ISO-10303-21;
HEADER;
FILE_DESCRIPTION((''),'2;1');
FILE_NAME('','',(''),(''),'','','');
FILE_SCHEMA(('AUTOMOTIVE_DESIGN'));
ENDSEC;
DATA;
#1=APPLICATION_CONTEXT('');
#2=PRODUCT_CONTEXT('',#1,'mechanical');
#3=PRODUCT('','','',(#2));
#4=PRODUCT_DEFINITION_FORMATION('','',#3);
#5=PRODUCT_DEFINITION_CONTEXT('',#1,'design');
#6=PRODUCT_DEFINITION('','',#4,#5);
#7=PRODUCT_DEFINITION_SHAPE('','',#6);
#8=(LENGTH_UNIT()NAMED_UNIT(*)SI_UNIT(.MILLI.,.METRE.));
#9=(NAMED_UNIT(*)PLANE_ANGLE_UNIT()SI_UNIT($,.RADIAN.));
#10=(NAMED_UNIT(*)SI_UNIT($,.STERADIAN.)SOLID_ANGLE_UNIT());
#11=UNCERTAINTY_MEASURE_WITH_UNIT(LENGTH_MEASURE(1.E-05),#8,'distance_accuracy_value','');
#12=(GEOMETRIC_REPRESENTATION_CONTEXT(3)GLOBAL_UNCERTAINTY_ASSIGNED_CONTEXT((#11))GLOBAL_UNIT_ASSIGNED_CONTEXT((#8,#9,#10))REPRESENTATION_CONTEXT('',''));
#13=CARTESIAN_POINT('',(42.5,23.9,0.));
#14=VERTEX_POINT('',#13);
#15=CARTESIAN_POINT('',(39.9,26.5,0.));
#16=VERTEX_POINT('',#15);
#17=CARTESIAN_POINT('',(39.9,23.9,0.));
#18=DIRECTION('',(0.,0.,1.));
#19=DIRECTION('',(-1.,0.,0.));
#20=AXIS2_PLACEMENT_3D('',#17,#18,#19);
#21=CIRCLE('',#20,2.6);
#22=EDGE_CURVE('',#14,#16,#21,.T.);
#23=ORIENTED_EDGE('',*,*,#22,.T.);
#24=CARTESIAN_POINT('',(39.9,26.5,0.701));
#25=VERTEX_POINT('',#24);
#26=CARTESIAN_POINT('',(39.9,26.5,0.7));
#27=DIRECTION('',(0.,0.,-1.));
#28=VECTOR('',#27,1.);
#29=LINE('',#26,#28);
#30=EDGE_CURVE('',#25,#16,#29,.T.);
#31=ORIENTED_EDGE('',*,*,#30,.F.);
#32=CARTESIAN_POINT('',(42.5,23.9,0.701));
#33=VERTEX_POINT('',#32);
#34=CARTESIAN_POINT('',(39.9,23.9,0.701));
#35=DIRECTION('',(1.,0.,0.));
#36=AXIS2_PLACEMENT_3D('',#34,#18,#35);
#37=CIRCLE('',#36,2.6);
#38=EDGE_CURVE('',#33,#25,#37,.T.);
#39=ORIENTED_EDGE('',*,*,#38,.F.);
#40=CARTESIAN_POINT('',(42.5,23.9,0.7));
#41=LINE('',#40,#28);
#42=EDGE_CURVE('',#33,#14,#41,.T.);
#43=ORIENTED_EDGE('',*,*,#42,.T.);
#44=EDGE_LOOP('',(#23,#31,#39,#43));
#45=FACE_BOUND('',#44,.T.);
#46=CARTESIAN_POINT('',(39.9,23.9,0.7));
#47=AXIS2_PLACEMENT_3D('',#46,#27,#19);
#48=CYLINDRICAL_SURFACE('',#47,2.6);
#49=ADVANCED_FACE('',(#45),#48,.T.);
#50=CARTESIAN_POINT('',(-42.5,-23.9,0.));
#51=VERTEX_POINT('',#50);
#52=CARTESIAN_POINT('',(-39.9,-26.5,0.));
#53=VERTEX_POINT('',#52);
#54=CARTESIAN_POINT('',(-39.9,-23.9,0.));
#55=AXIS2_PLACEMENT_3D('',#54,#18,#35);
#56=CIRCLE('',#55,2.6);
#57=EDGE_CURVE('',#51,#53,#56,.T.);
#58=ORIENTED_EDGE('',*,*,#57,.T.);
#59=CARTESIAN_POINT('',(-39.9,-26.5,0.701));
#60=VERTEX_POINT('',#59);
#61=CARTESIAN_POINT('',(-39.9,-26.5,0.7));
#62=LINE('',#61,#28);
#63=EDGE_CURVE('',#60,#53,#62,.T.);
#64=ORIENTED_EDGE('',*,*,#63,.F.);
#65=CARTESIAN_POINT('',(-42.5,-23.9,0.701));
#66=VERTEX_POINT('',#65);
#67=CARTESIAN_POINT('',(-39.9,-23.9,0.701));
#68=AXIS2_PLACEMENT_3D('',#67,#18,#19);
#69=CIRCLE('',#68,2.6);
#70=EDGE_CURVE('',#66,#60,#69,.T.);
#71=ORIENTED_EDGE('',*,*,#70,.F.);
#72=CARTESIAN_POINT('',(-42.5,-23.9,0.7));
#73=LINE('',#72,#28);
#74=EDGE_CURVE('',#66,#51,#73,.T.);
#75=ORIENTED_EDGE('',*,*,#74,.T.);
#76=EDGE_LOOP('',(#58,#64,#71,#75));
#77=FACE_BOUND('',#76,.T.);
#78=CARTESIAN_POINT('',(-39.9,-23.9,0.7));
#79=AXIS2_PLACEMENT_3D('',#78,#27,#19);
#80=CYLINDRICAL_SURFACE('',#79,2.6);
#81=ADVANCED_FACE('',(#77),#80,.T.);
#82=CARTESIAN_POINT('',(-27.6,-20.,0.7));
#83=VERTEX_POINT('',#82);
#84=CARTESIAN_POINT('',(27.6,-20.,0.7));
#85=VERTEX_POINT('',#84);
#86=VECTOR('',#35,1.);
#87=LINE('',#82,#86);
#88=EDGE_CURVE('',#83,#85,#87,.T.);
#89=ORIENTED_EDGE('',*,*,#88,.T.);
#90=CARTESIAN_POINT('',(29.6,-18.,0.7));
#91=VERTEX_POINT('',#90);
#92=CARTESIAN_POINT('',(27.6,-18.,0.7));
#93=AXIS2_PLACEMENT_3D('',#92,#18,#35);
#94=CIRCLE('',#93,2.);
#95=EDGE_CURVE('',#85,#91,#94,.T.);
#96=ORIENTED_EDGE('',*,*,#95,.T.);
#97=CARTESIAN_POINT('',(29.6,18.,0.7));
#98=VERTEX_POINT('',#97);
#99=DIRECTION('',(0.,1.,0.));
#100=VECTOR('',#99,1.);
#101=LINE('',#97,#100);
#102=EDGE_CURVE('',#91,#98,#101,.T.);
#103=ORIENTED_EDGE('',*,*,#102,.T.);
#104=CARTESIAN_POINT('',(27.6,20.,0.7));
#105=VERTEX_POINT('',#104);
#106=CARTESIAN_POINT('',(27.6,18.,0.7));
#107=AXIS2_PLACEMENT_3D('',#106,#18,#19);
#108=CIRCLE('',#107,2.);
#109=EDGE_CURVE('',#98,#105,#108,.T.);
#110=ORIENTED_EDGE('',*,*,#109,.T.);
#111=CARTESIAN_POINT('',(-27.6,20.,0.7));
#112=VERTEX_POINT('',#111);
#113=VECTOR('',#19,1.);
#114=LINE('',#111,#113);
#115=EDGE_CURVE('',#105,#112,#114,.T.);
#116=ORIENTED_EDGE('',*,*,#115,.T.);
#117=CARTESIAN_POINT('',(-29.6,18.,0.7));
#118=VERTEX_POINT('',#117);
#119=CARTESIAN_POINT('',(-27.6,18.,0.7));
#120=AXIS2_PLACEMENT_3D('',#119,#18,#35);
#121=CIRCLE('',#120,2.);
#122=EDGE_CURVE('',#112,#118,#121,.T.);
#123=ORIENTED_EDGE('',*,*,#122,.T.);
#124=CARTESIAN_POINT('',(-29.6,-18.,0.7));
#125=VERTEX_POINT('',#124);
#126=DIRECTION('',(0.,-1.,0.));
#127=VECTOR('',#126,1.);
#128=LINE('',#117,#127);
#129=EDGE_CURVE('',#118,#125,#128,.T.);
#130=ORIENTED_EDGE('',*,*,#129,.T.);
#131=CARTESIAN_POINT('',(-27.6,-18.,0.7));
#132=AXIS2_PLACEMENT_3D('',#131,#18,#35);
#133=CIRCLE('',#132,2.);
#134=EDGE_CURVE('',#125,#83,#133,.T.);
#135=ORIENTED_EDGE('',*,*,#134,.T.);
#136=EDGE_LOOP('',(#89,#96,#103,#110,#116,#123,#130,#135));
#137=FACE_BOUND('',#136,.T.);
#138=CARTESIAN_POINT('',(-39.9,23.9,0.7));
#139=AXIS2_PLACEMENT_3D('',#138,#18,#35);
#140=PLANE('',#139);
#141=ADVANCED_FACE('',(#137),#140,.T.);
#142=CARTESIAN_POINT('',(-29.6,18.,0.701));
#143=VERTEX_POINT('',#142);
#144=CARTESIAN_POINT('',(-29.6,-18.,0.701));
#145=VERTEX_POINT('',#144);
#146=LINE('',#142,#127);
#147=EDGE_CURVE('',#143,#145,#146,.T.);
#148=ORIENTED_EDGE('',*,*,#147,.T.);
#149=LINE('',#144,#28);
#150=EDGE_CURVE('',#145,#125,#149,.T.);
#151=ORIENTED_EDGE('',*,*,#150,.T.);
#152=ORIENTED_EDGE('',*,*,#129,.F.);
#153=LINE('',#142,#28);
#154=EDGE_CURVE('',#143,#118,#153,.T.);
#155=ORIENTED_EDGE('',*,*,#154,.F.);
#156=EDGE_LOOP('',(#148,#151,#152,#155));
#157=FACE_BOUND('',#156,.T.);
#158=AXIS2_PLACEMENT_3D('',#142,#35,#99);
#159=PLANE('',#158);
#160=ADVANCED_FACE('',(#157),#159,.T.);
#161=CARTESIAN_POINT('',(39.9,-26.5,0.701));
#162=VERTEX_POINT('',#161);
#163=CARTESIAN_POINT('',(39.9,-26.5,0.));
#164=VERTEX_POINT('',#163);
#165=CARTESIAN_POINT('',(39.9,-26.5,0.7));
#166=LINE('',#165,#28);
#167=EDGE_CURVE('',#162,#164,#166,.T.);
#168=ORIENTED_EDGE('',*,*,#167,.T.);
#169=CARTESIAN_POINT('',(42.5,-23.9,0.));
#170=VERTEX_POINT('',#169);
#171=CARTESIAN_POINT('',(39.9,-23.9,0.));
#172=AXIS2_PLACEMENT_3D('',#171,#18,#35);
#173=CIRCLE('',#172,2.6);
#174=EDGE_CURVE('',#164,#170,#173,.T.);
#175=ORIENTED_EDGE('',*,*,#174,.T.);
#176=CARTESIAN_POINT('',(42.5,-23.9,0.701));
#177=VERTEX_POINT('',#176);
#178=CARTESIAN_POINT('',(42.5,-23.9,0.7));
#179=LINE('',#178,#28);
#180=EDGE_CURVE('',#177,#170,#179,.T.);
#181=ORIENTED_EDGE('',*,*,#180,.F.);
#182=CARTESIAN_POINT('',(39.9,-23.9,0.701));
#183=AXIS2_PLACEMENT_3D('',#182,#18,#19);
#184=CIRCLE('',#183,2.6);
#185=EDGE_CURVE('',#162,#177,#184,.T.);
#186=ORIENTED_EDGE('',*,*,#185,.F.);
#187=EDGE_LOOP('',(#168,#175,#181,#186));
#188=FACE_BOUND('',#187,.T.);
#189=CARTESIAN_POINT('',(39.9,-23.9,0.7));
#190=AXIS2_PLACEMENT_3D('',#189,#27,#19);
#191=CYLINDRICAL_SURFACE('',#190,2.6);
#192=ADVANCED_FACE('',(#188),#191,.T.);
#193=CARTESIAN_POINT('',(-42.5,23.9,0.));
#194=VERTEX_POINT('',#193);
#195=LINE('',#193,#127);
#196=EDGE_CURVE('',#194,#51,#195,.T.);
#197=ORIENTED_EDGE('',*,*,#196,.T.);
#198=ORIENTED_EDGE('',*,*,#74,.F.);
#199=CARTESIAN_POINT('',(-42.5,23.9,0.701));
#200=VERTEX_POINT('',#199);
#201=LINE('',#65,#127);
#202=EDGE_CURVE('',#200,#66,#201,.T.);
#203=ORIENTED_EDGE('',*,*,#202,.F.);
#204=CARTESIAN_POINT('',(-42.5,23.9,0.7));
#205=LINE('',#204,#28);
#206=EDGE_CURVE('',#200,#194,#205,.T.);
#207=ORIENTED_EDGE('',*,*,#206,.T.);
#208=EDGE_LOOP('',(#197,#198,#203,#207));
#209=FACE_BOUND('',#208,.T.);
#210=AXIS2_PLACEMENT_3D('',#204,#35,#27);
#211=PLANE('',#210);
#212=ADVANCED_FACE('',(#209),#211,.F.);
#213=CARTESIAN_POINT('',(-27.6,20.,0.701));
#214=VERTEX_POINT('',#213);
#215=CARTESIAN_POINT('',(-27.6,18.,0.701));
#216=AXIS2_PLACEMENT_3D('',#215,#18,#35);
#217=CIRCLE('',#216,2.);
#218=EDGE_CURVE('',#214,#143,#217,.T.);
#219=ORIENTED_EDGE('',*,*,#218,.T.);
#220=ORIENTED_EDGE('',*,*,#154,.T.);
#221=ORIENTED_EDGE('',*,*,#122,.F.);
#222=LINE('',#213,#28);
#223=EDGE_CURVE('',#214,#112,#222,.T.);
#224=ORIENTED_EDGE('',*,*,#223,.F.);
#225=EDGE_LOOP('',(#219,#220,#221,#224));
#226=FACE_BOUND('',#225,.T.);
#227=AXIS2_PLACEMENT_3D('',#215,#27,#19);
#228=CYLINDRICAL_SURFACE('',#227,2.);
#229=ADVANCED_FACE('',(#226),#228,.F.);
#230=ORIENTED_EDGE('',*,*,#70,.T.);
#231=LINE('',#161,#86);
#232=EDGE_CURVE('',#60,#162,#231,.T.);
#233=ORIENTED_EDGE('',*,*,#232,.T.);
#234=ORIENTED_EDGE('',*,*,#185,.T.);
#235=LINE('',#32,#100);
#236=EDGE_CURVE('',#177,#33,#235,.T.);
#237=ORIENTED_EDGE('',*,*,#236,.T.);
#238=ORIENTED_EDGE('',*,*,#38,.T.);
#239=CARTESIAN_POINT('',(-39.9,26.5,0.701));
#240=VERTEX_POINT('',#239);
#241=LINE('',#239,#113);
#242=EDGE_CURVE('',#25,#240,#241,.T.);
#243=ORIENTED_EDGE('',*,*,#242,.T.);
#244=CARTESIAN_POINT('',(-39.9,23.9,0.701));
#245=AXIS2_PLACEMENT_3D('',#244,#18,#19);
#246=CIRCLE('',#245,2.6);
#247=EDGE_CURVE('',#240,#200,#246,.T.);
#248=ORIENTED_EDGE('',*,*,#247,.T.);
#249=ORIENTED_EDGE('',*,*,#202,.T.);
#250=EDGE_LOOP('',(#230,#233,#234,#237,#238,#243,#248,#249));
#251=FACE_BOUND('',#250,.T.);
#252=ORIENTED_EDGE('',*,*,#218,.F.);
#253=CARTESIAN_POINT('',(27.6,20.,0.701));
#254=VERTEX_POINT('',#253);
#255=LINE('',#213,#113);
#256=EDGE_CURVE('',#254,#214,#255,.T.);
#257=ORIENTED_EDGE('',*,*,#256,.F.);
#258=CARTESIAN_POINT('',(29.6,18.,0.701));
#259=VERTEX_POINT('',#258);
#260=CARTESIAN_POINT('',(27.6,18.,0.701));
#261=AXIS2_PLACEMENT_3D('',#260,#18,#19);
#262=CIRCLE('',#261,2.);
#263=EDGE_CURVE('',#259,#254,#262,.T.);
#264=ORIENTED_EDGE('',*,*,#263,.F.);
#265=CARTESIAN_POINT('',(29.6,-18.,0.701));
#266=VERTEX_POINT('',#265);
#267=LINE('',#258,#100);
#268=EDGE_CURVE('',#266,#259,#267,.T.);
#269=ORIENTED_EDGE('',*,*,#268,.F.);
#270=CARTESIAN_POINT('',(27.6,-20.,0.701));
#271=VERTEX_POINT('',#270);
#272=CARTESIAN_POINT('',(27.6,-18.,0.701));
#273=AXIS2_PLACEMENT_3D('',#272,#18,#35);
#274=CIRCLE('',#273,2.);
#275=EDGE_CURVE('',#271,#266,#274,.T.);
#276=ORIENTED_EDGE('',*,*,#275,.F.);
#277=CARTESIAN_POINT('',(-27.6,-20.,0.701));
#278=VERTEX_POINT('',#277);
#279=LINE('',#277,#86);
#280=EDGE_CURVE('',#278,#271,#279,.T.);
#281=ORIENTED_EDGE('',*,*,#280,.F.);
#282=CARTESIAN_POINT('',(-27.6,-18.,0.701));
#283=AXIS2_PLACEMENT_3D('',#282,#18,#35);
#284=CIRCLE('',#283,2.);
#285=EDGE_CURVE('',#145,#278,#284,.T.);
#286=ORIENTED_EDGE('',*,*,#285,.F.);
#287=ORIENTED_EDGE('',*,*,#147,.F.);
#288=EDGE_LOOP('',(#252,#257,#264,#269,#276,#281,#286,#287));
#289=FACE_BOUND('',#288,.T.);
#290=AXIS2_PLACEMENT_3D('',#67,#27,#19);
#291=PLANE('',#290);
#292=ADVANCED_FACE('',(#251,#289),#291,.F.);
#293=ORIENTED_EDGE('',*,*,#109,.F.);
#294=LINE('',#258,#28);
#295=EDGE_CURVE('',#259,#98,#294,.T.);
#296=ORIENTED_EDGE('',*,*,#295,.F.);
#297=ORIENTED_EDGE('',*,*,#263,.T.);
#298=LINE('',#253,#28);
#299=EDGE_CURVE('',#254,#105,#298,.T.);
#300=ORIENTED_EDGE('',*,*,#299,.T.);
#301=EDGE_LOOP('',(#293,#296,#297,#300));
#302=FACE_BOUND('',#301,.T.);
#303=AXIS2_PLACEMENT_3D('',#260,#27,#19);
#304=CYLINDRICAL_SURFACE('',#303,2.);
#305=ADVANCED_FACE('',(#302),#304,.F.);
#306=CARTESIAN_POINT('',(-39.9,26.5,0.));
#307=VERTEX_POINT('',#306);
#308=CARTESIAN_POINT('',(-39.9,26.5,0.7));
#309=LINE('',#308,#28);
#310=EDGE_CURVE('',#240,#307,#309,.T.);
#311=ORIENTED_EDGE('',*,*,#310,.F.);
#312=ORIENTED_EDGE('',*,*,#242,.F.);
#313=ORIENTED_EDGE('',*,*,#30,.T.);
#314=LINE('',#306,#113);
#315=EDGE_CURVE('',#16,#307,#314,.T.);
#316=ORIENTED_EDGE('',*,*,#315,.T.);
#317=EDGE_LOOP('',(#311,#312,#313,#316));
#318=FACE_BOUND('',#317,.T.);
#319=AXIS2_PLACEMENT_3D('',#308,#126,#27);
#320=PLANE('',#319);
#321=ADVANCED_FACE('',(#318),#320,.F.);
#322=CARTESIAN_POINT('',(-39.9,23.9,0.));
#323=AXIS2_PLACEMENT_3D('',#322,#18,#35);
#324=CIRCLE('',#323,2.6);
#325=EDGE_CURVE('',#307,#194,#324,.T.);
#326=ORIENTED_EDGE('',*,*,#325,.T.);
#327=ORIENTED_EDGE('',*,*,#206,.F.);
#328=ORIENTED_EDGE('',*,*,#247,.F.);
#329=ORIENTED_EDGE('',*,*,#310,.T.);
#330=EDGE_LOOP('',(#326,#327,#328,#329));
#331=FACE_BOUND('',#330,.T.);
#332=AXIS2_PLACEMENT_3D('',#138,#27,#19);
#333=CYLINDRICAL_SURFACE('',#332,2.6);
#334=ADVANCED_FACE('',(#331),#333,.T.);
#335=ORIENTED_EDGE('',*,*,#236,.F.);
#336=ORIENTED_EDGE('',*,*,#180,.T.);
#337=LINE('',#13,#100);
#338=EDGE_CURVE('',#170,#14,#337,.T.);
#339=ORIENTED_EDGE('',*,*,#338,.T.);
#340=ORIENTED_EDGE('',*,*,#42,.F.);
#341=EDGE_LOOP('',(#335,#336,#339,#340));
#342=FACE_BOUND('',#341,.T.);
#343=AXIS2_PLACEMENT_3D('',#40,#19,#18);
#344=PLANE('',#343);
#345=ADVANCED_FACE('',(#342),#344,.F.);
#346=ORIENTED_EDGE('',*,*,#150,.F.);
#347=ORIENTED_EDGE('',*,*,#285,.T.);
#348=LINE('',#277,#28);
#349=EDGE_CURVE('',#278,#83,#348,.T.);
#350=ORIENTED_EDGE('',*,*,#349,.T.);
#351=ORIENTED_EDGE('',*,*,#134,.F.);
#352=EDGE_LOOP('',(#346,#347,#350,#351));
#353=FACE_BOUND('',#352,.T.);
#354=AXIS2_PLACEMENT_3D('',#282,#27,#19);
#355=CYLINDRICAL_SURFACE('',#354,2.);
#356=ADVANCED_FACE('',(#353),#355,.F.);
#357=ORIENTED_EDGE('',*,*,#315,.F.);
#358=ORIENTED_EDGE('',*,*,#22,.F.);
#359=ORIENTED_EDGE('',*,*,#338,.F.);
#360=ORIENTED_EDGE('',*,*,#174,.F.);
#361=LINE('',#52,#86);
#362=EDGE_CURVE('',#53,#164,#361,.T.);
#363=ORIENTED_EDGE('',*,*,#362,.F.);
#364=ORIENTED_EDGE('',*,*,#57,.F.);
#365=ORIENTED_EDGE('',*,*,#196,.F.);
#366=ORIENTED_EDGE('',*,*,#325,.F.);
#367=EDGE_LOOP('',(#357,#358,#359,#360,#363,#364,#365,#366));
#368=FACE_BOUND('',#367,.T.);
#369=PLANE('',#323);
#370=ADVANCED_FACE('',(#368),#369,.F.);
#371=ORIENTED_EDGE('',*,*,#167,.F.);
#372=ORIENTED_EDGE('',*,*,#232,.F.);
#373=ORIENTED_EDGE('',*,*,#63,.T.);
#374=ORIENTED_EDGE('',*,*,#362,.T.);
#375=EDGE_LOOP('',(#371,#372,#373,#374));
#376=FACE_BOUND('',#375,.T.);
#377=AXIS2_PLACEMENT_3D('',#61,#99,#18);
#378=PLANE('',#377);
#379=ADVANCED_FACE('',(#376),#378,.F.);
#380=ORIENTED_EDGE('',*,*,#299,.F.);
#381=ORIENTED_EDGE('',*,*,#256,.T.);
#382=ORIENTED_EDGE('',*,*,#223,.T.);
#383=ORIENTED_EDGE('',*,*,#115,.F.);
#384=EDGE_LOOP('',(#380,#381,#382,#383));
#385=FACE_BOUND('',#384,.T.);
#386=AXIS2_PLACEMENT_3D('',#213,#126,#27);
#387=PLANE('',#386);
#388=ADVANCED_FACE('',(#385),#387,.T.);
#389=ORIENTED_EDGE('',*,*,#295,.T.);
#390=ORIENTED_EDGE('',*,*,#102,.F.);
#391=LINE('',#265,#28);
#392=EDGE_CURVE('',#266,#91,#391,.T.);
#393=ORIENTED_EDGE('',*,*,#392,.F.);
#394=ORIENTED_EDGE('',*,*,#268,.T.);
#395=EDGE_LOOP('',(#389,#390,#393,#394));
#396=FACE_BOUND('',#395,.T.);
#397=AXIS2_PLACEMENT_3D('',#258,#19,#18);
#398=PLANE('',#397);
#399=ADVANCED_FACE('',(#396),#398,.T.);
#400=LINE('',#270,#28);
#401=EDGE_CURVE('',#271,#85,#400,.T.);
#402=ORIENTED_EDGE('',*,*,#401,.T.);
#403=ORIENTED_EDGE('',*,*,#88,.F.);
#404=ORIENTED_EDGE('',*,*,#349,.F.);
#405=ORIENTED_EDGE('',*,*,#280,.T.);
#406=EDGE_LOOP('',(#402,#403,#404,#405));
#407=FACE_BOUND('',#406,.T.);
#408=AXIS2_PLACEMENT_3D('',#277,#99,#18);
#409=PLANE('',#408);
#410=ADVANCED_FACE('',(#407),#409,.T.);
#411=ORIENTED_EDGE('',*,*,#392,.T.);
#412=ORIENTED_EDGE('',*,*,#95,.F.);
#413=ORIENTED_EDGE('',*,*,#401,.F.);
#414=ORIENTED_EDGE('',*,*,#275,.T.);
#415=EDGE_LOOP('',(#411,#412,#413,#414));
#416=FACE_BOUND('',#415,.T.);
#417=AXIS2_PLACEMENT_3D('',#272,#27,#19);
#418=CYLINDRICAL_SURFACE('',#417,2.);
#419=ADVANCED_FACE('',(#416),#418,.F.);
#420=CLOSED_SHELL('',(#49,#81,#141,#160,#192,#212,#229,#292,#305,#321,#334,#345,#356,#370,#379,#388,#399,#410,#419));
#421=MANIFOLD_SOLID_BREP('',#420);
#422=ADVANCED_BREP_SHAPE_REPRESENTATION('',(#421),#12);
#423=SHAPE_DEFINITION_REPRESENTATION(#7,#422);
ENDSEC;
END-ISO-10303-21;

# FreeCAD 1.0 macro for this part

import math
import FreeCAD as App
import Part
import Sketcher

doc = App.newDocument("Part")
body = doc.addObject("PartDesign::Body", "Body")

# Sketch on XY plane
sketch1 = body.newObject("Sketcher::SketchObject", "Sketch")
sketch1.AttachmentSupport = (doc.getObject("XY_Plane"), [""])
sketch1.MapMode = "FlatFace"
sketch1.addGeometry([
    Part.LineSegment(App.Vector(39.9, 26.5, 0), App.Vector(-39.9, 26.5, 0)),  # 0
    Part.ArcOfCircle(Part.Circle(App.Vector(-39.9, 23.9, 0), App.Vector(0, 0, 1), 2.6), math.radians(90), math.radians(180)),  # 1
    Part.LineSegment(App.Vector(-42.5, 23.9, 0), App.Vector(-42.5, -23.9, 0)),  # 2
    Part.ArcOfCircle(Part.Circle(App.Vector(-39.9, -23.9, 0), App.Vector(0, 0, 1), 2.6), math.radians(180), math.radians(270)),  # 3
    Part.LineSegment(App.Vector(-39.9, -26.5, 0), App.Vector(39.9, -26.5, 0)),  # 4
    Part.ArcOfCircle(Part.Circle(App.Vector(39.9, -23.9, 0), App.Vector(0, 0, 1), 2.6), math.radians(-90), math.radians(0)),  # 5
    Part.LineSegment(App.Vector(42.5, -23.9, 0), App.Vector(42.5, 23.9, 0)),  # 6
    Part.ArcOfCircle(Part.Circle(App.Vector(39.9, 23.9, 0), App.Vector(0, 0, 1), 2.6), math.radians(0), math.radians(90)),  # 7
], False)
sketch1.addConstraint([
    Sketcher.Constraint("Tangent", 0, 2, 1, 1),
    Sketcher.Constraint("Tangent", 1, 2, 2, 1),
    Sketcher.Constraint("Tangent", 2, 2, 3, 1),
    Sketcher.Constraint("Tangent", 3, 2, 4, 1),
    Sketcher.Constraint("Tangent", 4, 2, 5, 1),
    Sketcher.Constraint("Tangent", 5, 2, 6, 1),
    Sketcher.Constraint("Tangent", 6, 2, 7, 1),
    Sketcher.Constraint("Tangent", 7, 2, 0, 1),
    Sketcher.Constraint("Horizontal", 0),
    Sketcher.Constraint("Vertical", 2),
    Sketcher.Constraint("Horizontal", 4),
    Sketcher.Constraint("Vertical", 6),
    Sketcher.Constraint("Equal", 1, 3),
    Sketcher.Constraint("Equal", 3, 5),
    Sketcher.Constraint("Equal", 5, 7),
    Sketcher.Constraint("Symmetric", 1, 3, 5, 3, -1, 1),
    Sketcher.Constraint("Radius", 1, 2.6),
    Sketcher.Constraint("DistanceX", 0, 2, 0, 1, 79.8),
    Sketcher.Constraint("DistanceY", 2, 2, 2, 1, 47.8),
])
pad1 = body.newObject("PartDesign::Pad", "Pad")
pad1.Profile = sketch1
pad1.Length = 0.7

# Sketch on XY plane
sketch2 = body.newObject("Sketcher::SketchObject", "Sketch001")
sketch2.AttachmentSupport = (doc.getObject("XY_Plane"), [""])
sketch2.MapMode = "FlatFace"
sketch2.AttachmentOffset = App.Placement(App.Vector(0, 0, 0.7), App.Rotation())
sketch2.addGeometry([
    Part.LineSegment(App.Vector(-42.5, 23.9, 0), App.Vector(-42.5, -23.9, 0)),  # 0
    Part.ArcOfCircle(Part.Circle(App.Vector(-39.9, -23.9, 0), App.Vector(0, 0, 1), 2.6), math.radians(180), math.radians(270)),  # 1
    Part.LineSegment(App.Vector(-39.9, -26.5, 0), App.Vector(39.9, -26.5, 0)),  # 2
    Part.ArcOfCircle(Part.Circle(App.Vector(39.9, -23.9, 0), App.Vector(0, 0, 1), 2.6), math.radians(-90), math.radians(0)),  # 3
    Part.LineSegment(App.Vector(42.5, -23.9, 0), App.Vector(42.5, 23.9, 0)),  # 4
    Part.ArcOfCircle(Part.Circle(App.Vector(39.9, 23.9, 0), App.Vector(0, 0, 1), 2.6), math.radians(0), math.radians(90)),  # 5
    Part.LineSegment(App.Vector(39.9, 26.5, 0), App.Vector(-39.9, 26.5, 0)),  # 6
    Part.ArcOfCircle(Part.Circle(App.Vector(-39.9, 23.9, 0), App.Vector(0, 0, 1), 2.6), math.radians(90), math.radians(180)),  # 7
    Part.LineSegment(App.Vector(-27.6, 20, 0), App.Vector(27.6, 20, 0)),  # 8
    Part.ArcOfCircle(Part.Circle(App.Vector(27.6, 18, 0), App.Vector(0, 0, 1), 2), math.radians(0), math.radians(90)),  # 9
    Part.LineSegment(App.Vector(29.6, 18, 0), App.Vector(29.6, -18, 0)),  # 10
    Part.ArcOfCircle(Part.Circle(App.Vector(27.6, -18, 0), App.Vector(0, 0, 1), 2), math.radians(-90), math.radians(0)),  # 11
    Part.LineSegment(App.Vector(27.6, -20, 0), App.Vector(-27.6, -20, 0)),  # 12
    Part.ArcOfCircle(Part.Circle(App.Vector(-27.6, -18, 0), App.Vector(0, 0, 1), 2), math.radians(-180), math.radians(-90)),  # 13
    Part.LineSegment(App.Vector(-29.6, -18, 0), App.Vector(-29.6, 18, 0)),  # 14
    Part.ArcOfCircle(Part.Circle(App.Vector(-27.6, 18, 0), App.Vector(0, 0, 1), 2), math.radians(90), math.radians(180)),  # 15
], False)
sketch2.addConstraint([
    Sketcher.Constraint("Tangent", 0, 2, 1, 1),
    Sketcher.Constraint("Tangent", 1, 2, 2, 1),
    Sketcher.Constraint("Tangent", 2, 2, 3, 1),
    Sketcher.Constraint("Tangent", 3, 2, 4, 1),
    Sketcher.Constraint("Tangent", 4, 2, 5, 1),
    Sketcher.Constraint("Tangent", 5, 2, 6, 1),
    Sketcher.Constraint("Tangent", 6, 2, 7, 1),
    Sketcher.Constraint("Tangent", 7, 2, 0, 1),
    Sketcher.Constraint("Tangent", 8, 2, 9, 2),
    Sketcher.Constraint("Tangent", 9, 1, 10, 1),
    Sketcher.Constraint("Tangent", 10, 2, 11, 2),
    Sketcher.Constraint("Tangent", 11, 1, 12, 1),
    Sketcher.Constraint("Tangent", 12, 2, 13, 2),
    Sketcher.Constraint("Tangent", 13, 1, 14, 1),
    Sketcher.Constraint("Tangent", 14, 2, 15, 2),
    Sketcher.Constraint("Tangent", 15, 1, 8, 1),
    Sketcher.Constraint("Vertical", 0),
    Sketcher.Constraint("Horizontal", 2),
    Sketcher.Constraint("Vertical", 4),
    Sketcher.Constraint("Horizontal", 6),
    Sketcher.Constraint("Horizontal", 8),
    Sketcher.Constraint("Vertical", 10),
    Sketcher.Constraint("Horizontal", 12),
    Sketcher.Constraint("Vertical", 14),
    Sketcher.Constraint("Equal", 1, 3),
    Sketcher.Constraint("Equal", 3, 5),
    Sketcher.Constraint("Equal", 5, 7),
    Sketcher.Constraint("Equal", 9, 11),
    Sketcher.Constraint("Equal", 11, 13),
    Sketcher.Constraint("Equal", 13, 15),
    Sketcher.Constraint("Symmetric", 1, 3, 5, 3, -1, 1),
    Sketcher.Constraint("Symmetric", 9, 3, 13, 3, -1, 1),
    Sketcher.Constraint("Radius", 9, 2.0),
    Sketcher.Constraint("Radius", 1, 2.6),
    Sketcher.Constraint("DistanceY", 10, 2, 10, 1, 36.0),
    Sketcher.Constraint("DistanceX", 2, 1, 2, 2, 79.8),
    Sketcher.Constraint("DistanceX", 8, 1, 8, 2, 55.2),
    Sketcher.Constraint("DistanceY", 0, 2, 0, 1, 47.8),
])
pad2 = body.newObject("PartDesign::Pad", "Pad001")
pad2.Profile = sketch2
pad2.Length = 0.001

doc.recompute()
